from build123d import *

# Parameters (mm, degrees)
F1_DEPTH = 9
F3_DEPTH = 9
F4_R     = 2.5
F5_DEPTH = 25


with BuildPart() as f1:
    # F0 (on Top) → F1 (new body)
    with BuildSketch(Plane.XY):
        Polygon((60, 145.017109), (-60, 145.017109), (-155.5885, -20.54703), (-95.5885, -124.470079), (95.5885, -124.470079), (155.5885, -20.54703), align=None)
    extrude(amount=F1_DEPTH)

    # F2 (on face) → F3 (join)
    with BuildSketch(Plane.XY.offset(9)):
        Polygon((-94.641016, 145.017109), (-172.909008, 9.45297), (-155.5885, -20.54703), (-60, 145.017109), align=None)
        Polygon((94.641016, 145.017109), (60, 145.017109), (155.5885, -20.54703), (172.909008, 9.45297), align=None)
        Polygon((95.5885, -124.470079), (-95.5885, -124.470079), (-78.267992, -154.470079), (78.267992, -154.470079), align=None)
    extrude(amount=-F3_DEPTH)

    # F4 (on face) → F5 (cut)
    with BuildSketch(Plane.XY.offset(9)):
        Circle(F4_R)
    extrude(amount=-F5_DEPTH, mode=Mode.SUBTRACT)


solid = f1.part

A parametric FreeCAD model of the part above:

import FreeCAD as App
import Part
import Sketcher
Q = App.Units.Quantity

doc = App.newDocument("Part")
params = doc.addObject("Spreadsheet::Sheet", "Params")
for row, (alias, value) in enumerate([
    ("sketch1_width", "120 mm"),
    ("sketch1_length", "120 mm"),
    ("pad1_length", "9 mm"),
    ("pad2_length", "9 mm"),
    ("sketch3_diameter", "5 mm"),
    ("pocket1_length", "25 mm"),
], start=1):
    params.set(f"A{row}", alias)
    params.set(f"B{row}", "=" + value)
    params.setAlias(f"B{row}", alias)

body = doc.addObject("PartDesign::Body", "Body")

# Sketch on XY plane
sketch1 = body.newObject("Sketcher::SketchObject", "Sketch")
sketch1.AttachmentSupport = (doc.getObject("XY_Plane"), [""])
sketch1.MapMode = "FlatFace"
sketch1.addGeometry([
    Part.LineSegment(App.Vector(60, 145, 0), App.Vector(-60, 145, 0)),  # 0
    Part.LineSegment(App.Vector(-60, 145, 0), App.Vector(-156, -21, 0)),  # 1
    Part.LineSegment(App.Vector(-156, -21, 0), App.Vector(-96, -124, 0)),  # 2
    Part.LineSegment(App.Vector(-96, -124, 0), App.Vector(96, -124, 0)),  # 3
    Part.LineSegment(App.Vector(96, -124, 0), App.Vector(156, -21, 0)),  # 4
    Part.LineSegment(App.Vector(156, -21, 0), App.Vector(60, 145, 0)),  # 5
], False)
sketch1.addConstraint([
    Sketcher.Constraint("Coincident", 0, 2, 1, 1),
    Sketcher.Constraint("Coincident", 1, 2, 2, 1),
    Sketcher.Constraint("Coincident", 2, 2, 3, 1),
    Sketcher.Constraint("Coincident", 3, 2, 4, 1),
    Sketcher.Constraint("Coincident", 4, 2, 5, 1),
    Sketcher.Constraint("Coincident", 5, 2, 0, 1),
    Sketcher.Constraint("Horizontal", 0),
    Sketcher.Constraint("Horizontal", 3),
    Sketcher.Constraint("Symmetric", 1, 2, 4, 2, -2),
    Sketcher.Constraint("Parallel", 1, 4),
    Sketcher.Constraint("Parallel", 2, 5),
    Sketcher.Constraint("Equal", 2, 4),
    Sketcher.Constraint("DistanceX", 0, 2, 0, 1, 120.0),
    Sketcher.Constraint("Angle", 1, Q("-120 deg")),
    Sketcher.Constraint("Distance", 2, 120.0),
    Sketcher.Constraint("DistanceX", 3, 1, 3, 2, 191.177),
    Sketcher.Constraint("DistanceY", -1, 1, 0, 2, 145.017109),
])
sketch1.setExpression("Constraints[12]", "Params.sketch1_width")
sketch1.setExpression("Constraints[14]", "Params.sketch1_length")
pad1 = body.newObject("PartDesign::Pad", "Pad")
pad1.Profile = sketch1
pad1.setExpression("Length", "Params.pad1_length")

# Sketch on XY plane
sketch2 = body.newObject("Sketcher::SketchObject", "Sketch001")
sketch2.AttachmentSupport = (doc.getObject("XY_Plane"), [""])
sketch2.MapMode = "FlatFace"
sketch2.AttachmentOffset = App.Placement(App.Vector(0, 0, 9), App.Rotation())
sketch2.addGeometry([
    Part.LineSegment(App.Vector(-95, 145, 0), App.Vector(-173, 9, 0)),  # 0
    Part.LineSegment(App.Vector(-173, 9, 0), App.Vector(-156, -21, 0)),  # 1
    Part.LineSegment(App.Vector(-156, -21, 0), App.Vector(-60, 145, 0)),  # 2
    Part.LineSegment(App.Vector(-60, 145, 0), App.Vector(-95, 145, 0)),  # 3
    Part.LineSegment(App.Vector(95, 145, 0), App.Vector(60, 145, 0)),  # 4
    Part.LineSegment(App.Vector(60, 145, 0), App.Vector(156, -21, 0)),  # 5
    Part.LineSegment(App.Vector(156, -21, 0), App.Vector(173, 9, 0)),  # 6
    Part.LineSegment(App.Vector(173, 9, 0), App.Vector(95, 145, 0)),  # 7
    Part.LineSegment(App.Vector(96, -124, 0), App.Vector(-96, -124, 0)),  # 8
    Part.LineSegment(App.Vector(-96, -124, 0), App.Vector(-78, -154, 0)),  # 9
    Part.LineSegment(App.Vector(-78, -154, 0), App.Vector(78, -154, 0)),  # 10
    Part.LineSegment(App.Vector(78, -154, 0), App.Vector(96, -124, 0)),  # 11
], False)
sketch2.addConstraint([
    Sketcher.Constraint("Coincident", 0, 2, 1, 1),
    Sketcher.Constraint("Coincident", 1, 2, 2, 1),
    Sketcher.Constraint("Coincident", 2, 2, 3, 1),
    Sketcher.Constraint("Coincident", 3, 2, 0, 1),
    Sketcher.Constraint("Coincident", 4, 2, 5, 1),
    Sketcher.Constraint("Coincident", 5, 2, 6, 1),
    Sketcher.Constraint("Coincident", 6, 2, 7, 1),
    Sketcher.Constraint("Coincident", 7, 2, 4, 1),
    Sketcher.Constraint("Coincident", 8, 2, 9, 1),
    Sketcher.Constraint("Coincident", 9, 2, 10, 1),
    Sketcher.Constraint("Coincident", 10, 2, 11, 1),
    Sketcher.Constraint("Coincident", 11, 2, 8, 1),
    Sketcher.Constraint("Horizontal", 3),
    Sketcher.Constraint("Horizontal", 4),
    Sketcher.Constraint("Horizontal", 8),
    Sketcher.Constraint("Horizontal", 10),
    Sketcher.Constraint("Symmetric", 2, 2, 4, 2, -2),
    Sketcher.Constraint("Symmetric", 1, 2, 5, 2, -2),
    Sketcher.Constraint("Symmetric", 0, 2, 6, 2, -2),
    Sketcher.Constraint("Parallel", 0, 2),
    Sketcher.Constraint("Parallel", 1, 5),
    Sketcher.Constraint("Parallel", 5, 7),
    Sketcher.Constraint("Parallel", 7, 9),
    Sketcher.Constraint("Parallel", 6, 11),
    Sketcher.Constraint("Equal", 6, 9),
    Sketcher.Constraint("Angle", 0, Q("-120 deg")),
    Sketcher.Constraint("DistanceX", 2, 2, -1, 1, 60.0),
    Sketcher.Constraint("DistanceY", 1, 2, 0, 2, 30.0),
    Sketcher.Constraint("DistanceX", 1, 2, 8, 2, 60.0),
    Sketcher.Constraint("DistanceX", 11, 2, 5, 2, 60.0),
    Sketcher.Constraint("DistanceX", 8, 2, 8, 1, 191.177),
    Sketcher.Constraint("DistanceY", -1, 1, 0, 2, 9.45297),
    Sketcher.Constraint("DistanceY", 8, 2, -1, 1, 124.470079),
])
pad2 = body.newObject("PartDesign::Pad", "Pad001")
pad2.Profile = sketch2
pad2.setExpression("Length", "Params.pad2_length")
pad2.Reversed = True

# Sketch on XY plane
sketch3 = body.newObject("Sketcher::SketchObject", "Sketch002")
sketch3.AttachmentSupport = (doc.getObject("XY_Plane"), [""])
sketch3.MapMode = "FlatFace"
sketch3.AttachmentOffset = App.Placement(App.Vector(0, 0, 9), App.Rotation())
sketch3.addGeometry(Part.Circle(App.Vector(0, 0, 0), App.Vector(0, 0, 1), 2.5), False)
sketch3.addConstraint([
    Sketcher.Constraint("Coincident", 0, 3, -1, 1),
    Sketcher.Constraint("Diameter", 0, 5.0),
])
sketch3.setExpression("Constraints[1]", "Params.sketch3_diameter")
pocket1 = body.newObject("PartDesign::Pocket", "Pocket")
pocket1.Profile = sketch3
pocket1.setExpression("Length", "Params.pocket1_length")

doc.recompute()
